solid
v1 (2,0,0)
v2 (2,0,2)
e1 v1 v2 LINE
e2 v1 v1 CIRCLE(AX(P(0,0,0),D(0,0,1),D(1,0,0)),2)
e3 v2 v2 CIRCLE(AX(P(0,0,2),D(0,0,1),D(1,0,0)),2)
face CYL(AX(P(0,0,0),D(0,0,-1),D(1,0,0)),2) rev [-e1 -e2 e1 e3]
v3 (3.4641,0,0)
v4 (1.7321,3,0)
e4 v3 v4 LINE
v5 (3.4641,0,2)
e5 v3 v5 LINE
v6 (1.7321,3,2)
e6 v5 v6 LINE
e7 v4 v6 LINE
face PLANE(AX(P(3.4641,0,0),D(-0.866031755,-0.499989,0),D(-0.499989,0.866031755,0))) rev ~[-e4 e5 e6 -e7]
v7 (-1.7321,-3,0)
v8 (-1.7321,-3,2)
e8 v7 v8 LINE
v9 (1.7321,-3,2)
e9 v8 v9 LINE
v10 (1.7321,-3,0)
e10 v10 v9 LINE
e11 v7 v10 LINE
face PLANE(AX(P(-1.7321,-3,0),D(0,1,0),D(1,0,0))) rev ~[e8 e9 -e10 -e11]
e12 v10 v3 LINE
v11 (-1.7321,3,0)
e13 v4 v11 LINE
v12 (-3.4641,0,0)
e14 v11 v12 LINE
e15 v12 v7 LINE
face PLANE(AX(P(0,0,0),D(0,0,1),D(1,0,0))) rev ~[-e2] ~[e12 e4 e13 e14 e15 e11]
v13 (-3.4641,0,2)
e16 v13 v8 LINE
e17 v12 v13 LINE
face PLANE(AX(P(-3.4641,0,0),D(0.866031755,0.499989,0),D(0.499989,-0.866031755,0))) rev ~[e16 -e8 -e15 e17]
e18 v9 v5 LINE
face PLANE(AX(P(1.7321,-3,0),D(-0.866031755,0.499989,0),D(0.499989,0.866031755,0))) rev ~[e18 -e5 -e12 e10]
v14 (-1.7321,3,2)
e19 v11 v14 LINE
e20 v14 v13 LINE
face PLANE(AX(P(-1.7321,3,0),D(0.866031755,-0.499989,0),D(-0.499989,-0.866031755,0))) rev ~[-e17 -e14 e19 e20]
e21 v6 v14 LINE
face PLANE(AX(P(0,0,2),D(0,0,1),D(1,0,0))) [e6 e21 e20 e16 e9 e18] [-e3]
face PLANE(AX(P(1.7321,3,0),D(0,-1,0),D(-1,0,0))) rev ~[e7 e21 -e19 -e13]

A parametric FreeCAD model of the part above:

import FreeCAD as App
import Part
import Sketcher
Q = App.Units.Quantity


def add_polygon(sketch, points):
    """Adds a closed chain of lines whose ends are joined by coincident constraints."""
    first, n = sketch.GeometryCount, len(points)
    for a, b in zip(points, points[1:] + points[:1]):
        sketch.addGeometry(Part.LineSegment(App.Vector(*a, 0), App.Vector(*b, 0)), False)
    for i in range(n):
        sketch.addConstraint(Sketcher.Constraint("Coincident", first + i, 2, first + (i + 1) % n, 1))

doc = App.newDocument("Part")
params = doc.addObject("Spreadsheet::Sheet", "Params")
for row, (alias, value) in enumerate([
    ("sketch1_diameter", "4 mm"),
    ("pad1_length", "2 mm"),
], start=1):
    params.set(f"A{row}", alias)
    params.set(f"B{row}", "=" + value)
    params.setAlias(f"B{row}", alias)

body = doc.addObject("PartDesign::Body", "Body")

sketch1 = body.newObject("Sketcher::SketchObject", "Sketch")
sketch1.AttachmentSupport = (doc.getObject("XY_Plane"), [""])
sketch1.MapMode = "FlatFace"
add_polygon(sketch1, [(1.7, 3), (-1.7, 3), (-3.5, 0), (-1.7, -3), (1.7, -3), (3.5, 0)])
sketch1.addGeometry(Part.Circle(App.Vector(0, 0, 0), App.Vector(0, 0, 1), 2), False)
sketch1.addConstraint([
    Sketcher.Constraint("Horizontal", 0),
    Sketcher.Constraint("Horizontal", 3),
    Sketcher.Constraint("Coincident", 6, 3, -1, 1),
    Sketcher.Constraint("Symmetric", 0, 2, 3, 2, -1, 1),
    Sketcher.Constraint("Symmetric", 1, 2, 4, 2, -1, 1),
    Sketcher.Constraint("PointOnObject", 1, 2, -1),
    Sketcher.Constraint("Parallel", 2, 5),
    Sketcher.Constraint("Vertical", 0, 2, 2, 2),
    Sketcher.Constraint("Diameter", 6, 4.0),
    Sketcher.Constraint("Angle", 1, Q("-119.9993 deg")),
    Sketcher.Constraint("DistanceY", -1, 1, 0, 2, 3.0),
    Sketcher.Constraint("DistanceX", 0, 2, 0, 1, 3.4642),
])
sketch1.setExpression("Constraints[14]", "Params.sketch1_diameter")
pad1 = body.newObject("PartDesign::Pad", "Pad")
pad1.Profile = sketch1
pad1.setExpression("Length", "Params.pad1_length")

doc.recompute()
